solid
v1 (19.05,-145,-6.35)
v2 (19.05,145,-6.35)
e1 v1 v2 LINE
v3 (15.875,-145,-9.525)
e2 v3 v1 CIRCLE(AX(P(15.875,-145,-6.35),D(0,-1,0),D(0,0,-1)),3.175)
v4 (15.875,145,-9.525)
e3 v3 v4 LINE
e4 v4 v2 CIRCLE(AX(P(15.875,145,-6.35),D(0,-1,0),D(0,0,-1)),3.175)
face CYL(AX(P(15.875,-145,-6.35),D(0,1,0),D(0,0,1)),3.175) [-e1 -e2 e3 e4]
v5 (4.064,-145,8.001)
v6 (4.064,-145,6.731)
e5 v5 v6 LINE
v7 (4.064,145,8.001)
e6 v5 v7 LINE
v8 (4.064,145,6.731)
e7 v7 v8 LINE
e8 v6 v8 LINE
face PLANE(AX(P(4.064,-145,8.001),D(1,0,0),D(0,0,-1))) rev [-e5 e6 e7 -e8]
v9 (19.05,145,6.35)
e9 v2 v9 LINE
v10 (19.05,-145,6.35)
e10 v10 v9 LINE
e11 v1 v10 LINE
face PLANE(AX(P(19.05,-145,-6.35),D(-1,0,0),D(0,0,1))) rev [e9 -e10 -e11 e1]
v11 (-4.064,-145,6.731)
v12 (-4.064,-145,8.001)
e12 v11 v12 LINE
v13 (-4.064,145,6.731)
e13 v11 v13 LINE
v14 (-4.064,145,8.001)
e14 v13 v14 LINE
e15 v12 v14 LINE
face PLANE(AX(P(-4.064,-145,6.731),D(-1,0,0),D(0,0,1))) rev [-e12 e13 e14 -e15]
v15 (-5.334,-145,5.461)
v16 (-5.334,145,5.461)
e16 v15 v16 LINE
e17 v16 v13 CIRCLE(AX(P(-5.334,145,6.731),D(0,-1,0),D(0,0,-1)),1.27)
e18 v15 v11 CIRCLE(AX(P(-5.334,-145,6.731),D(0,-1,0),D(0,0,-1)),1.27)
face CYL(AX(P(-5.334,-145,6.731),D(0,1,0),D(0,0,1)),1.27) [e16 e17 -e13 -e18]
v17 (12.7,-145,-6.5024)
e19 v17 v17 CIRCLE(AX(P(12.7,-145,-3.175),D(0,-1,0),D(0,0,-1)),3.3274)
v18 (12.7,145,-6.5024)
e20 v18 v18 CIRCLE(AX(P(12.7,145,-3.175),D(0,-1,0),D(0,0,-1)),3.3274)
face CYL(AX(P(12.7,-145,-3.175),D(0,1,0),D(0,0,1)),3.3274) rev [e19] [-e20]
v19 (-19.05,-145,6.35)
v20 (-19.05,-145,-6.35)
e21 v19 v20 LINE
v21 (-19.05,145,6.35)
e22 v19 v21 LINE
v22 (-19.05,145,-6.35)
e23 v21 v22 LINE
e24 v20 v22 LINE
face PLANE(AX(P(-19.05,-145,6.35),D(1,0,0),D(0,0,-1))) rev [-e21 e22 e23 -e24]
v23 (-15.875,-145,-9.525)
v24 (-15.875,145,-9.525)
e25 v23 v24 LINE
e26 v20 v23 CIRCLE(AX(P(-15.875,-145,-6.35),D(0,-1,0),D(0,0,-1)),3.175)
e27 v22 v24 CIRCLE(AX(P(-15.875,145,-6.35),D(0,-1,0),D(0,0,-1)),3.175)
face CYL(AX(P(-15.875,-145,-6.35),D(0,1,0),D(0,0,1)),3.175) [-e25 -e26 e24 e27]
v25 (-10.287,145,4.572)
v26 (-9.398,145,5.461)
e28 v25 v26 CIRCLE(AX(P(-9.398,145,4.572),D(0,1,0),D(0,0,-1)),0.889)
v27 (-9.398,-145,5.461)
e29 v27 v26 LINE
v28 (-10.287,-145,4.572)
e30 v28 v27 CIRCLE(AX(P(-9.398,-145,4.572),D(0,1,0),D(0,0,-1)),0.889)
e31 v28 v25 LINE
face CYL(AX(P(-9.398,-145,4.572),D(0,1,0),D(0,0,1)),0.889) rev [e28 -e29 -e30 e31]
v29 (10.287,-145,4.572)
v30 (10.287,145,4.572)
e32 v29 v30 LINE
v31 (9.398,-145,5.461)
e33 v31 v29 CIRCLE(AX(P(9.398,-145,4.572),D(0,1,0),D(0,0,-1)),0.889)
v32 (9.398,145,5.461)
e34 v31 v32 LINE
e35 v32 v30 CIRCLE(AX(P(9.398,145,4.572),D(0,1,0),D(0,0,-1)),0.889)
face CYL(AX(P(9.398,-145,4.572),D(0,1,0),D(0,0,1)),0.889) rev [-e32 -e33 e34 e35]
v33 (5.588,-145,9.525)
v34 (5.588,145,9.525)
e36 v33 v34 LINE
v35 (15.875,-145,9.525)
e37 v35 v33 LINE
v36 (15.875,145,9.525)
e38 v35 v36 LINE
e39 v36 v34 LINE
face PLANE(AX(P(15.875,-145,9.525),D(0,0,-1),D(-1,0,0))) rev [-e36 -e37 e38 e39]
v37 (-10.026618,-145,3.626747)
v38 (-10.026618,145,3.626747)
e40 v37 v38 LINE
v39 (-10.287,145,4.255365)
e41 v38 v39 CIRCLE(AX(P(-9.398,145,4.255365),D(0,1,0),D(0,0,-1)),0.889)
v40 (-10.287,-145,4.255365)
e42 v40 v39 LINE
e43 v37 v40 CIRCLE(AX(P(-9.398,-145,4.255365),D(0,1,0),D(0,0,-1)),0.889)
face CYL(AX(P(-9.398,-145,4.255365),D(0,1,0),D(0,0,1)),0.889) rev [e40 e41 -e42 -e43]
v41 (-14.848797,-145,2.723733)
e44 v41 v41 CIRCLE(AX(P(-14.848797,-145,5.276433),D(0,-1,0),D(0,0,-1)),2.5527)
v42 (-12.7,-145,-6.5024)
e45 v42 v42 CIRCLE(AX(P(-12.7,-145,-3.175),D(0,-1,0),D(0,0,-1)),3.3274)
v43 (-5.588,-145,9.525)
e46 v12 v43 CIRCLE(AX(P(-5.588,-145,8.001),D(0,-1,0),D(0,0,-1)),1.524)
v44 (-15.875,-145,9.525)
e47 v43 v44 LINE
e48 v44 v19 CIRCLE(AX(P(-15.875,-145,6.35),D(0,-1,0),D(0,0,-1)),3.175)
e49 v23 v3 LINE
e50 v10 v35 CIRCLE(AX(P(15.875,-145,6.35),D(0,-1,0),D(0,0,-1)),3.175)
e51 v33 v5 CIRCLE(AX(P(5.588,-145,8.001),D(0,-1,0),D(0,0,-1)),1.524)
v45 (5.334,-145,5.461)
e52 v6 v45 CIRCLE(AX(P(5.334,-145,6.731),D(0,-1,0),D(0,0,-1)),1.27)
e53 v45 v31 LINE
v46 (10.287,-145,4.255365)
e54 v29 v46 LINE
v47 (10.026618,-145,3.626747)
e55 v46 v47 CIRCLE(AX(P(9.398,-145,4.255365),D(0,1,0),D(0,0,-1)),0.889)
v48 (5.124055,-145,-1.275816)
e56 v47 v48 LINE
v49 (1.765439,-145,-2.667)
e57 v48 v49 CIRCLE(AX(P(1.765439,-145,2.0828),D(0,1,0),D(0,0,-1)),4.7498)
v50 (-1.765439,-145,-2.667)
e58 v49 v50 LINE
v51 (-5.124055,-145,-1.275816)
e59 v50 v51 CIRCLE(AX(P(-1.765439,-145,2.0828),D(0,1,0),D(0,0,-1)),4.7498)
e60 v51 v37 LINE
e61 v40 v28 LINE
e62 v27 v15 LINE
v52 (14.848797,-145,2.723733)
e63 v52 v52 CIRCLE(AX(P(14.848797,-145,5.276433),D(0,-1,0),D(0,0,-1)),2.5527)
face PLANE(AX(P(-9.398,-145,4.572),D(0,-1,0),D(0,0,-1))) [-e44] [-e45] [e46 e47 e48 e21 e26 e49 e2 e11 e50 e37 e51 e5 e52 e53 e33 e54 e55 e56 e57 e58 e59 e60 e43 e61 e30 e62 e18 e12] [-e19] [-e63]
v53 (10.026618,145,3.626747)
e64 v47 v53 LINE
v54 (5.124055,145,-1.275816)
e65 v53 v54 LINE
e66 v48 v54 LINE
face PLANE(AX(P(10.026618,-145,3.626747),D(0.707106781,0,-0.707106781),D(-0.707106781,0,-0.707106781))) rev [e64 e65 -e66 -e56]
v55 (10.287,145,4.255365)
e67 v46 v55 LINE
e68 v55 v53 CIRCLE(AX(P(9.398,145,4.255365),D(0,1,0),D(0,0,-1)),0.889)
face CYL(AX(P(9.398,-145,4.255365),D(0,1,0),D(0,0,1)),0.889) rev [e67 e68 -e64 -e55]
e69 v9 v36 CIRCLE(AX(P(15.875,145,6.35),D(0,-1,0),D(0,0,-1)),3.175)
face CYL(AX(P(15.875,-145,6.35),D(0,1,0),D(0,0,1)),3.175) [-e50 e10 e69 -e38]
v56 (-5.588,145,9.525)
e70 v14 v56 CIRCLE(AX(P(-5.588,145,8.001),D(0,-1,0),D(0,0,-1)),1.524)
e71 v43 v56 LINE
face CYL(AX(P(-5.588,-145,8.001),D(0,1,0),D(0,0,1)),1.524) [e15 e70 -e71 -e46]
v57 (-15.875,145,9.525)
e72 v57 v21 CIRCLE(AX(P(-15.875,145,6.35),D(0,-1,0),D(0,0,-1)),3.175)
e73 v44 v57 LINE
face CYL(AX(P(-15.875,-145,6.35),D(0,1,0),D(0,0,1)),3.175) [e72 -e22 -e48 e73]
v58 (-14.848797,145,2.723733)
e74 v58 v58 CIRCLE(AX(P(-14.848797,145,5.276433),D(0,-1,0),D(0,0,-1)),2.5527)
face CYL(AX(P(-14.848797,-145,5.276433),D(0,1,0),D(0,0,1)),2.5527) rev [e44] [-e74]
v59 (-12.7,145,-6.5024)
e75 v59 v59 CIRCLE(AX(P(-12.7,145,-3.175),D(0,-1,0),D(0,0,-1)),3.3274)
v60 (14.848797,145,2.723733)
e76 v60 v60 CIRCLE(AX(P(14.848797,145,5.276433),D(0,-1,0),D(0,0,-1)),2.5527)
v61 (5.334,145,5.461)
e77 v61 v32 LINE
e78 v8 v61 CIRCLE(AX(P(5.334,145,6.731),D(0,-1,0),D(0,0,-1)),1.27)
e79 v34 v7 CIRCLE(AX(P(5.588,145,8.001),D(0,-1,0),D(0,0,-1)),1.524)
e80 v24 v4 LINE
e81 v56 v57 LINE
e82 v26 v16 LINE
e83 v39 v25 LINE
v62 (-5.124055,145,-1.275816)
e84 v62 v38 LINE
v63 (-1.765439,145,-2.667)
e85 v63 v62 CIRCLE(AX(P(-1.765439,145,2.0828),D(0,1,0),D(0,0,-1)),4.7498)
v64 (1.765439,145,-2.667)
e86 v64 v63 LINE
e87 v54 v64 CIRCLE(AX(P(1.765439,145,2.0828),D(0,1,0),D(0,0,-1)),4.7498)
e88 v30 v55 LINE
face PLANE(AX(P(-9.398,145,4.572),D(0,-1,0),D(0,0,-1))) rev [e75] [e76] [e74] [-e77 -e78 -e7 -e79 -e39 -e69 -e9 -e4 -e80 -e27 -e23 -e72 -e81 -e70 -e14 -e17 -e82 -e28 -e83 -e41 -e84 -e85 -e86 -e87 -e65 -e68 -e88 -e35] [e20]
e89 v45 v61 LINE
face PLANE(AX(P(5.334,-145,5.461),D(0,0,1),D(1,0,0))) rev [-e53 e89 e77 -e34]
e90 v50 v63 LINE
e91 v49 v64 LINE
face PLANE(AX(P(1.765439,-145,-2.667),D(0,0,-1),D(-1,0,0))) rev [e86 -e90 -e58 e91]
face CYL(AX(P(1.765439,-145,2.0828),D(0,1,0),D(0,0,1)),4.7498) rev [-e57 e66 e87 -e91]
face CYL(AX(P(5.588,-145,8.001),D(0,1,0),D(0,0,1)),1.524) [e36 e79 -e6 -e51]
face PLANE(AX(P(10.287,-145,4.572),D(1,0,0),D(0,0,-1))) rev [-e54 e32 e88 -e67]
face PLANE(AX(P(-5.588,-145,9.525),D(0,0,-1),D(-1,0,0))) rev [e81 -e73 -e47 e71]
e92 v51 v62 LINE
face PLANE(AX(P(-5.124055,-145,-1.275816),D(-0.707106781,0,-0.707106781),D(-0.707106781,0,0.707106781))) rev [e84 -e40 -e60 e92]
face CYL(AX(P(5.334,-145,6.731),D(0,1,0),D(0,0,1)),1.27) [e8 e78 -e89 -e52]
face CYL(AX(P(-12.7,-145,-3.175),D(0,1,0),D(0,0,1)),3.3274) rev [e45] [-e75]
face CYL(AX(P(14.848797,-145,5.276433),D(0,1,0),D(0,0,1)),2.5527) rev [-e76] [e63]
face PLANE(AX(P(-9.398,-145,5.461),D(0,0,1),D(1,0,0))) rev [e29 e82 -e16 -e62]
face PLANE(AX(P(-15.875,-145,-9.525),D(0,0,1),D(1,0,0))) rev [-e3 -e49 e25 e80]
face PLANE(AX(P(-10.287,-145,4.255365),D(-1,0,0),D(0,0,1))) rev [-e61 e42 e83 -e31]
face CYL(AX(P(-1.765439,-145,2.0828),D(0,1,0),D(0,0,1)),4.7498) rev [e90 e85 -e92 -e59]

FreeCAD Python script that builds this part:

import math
import FreeCAD as App
import Part
import Sketcher
from FreeCAD import Vector
Q = App.Units.Quantity

doc = App.newDocument("Part")
body = doc.addObject("PartDesign::Body", "Body")

# Sketch on XZ plane
sketch1 = body.newObject("Sketcher::SketchObject", "Sketch")
sketch1.AttachmentSupport = (doc.getObject("XZ_Plane"), [""])
sketch1.MapMode = "FlatFace"
sketch1.AttachmentOffset = App.Placement(Vector(0, 0, -145), App.Rotation())
sketch1.addGeometry([
    Part.LineSegment(Vector(-9.4, 5.46, 0), Vector(-5.33, 5.46, 0)),  # 0
    Part.ArcOfCircle(Part.Circle(Vector(-5.33, 6.73, 0), Vector(0, 0, 1), 1.27), math.radians(-90), math.radians(0)),  # 1
    Part.LineSegment(Vector(-4.06, 6.73, 0), Vector(-4.06, 8, 0)),  # 2
    Part.ArcOfCircle(Part.Circle(Vector(-5.59, 8, 0), Vector(0, 0, 1), 1.52), math.radians(0), math.radians(90)),  # 3
    Part.LineSegment(Vector(-5.59, 9.53, 0), Vector(-15.88, 9.53, 0)),  # 4
    Part.ArcOfCircle(Part.Circle(Vector(-15.87, 6.35, 0), Vector(0, 0, 1), 3.18), math.radians(90), math.radians(180)),  # 5
    Part.LineSegment(Vector(-19.05, 6.35, 0), Vector(-19.05, -6.35, 0)),  # 6
    Part.ArcOfCircle(Part.Circle(Vector(-15.87, -6.35, 0), Vector(0, 0, 1), 3.18), math.radians(-180), math.radians(-90)),  # 7
    Part.LineSegment(Vector(-15.88, -9.53, 0), Vector(15.88, -9.53, 0)),  # 8
    Part.ArcOfCircle(Part.Circle(Vector(15.87, -6.35, 0), Vector(0, 0, 1), 3.18), math.radians(-90), math.radians(0)),  # 9
    Part.LineSegment(Vector(19.05, -6.35, 0), Vector(19.05, 6.35, 0)),  # 10
    Part.ArcOfCircle(Part.Circle(Vector(15.87, 6.35, 0), Vector(0, 0, 1), 3.18), math.radians(0), math.radians(90)),  # 11
    Part.LineSegment(Vector(15.88, 9.53, 0), Vector(5.59, 9.53, 0)),  # 12
    Part.ArcOfCircle(Part.Circle(Vector(5.59, 8, 0), Vector(0, 0, 1), 1.52), math.radians(90), math.radians(180)),  # 13
    Part.LineSegment(Vector(4.06, 8, 0), Vector(4.06, 6.73, 0)),  # 14
    Part.ArcOfCircle(Part.Circle(Vector(5.33, 6.73, 0), Vector(0, 0, 1), 1.27), math.radians(180), math.radians(270)),  # 15
    Part.LineSegment(Vector(5.33, 5.46, 0), Vector(9.4, 5.46, 0)),  # 16
    Part.ArcOfCircle(Part.Circle(Vector(9.4, 4.57, 0), Vector(0, 0, 1), 0.89), math.radians(0), math.radians(90)),  # 17
    Part.LineSegment(Vector(10.29, 4.57, 0), Vector(10.29, 4.26, 0)),  # 18
    Part.ArcOfCircle(Part.Circle(Vector(9.4, 4.26, 0), Vector(0, 0, 1), 0.89), math.radians(-45), math.radians(0)),  # 19
    Part.LineSegment(Vector(10.03, 3.63, 0), Vector(5.12, -1.28, 0)),  # 20
    Part.ArcOfCircle(Part.Circle(Vector(1.77, 2.08, 0), Vector(0, 0, 1), 4.75), math.radians(-90), math.radians(-45)),  # 21
    Part.LineSegment(Vector(1.77, -2.67, 0), Vector(-1.77, -2.67, 0)),  # 22
    Part.ArcOfCircle(Part.Circle(Vector(-1.77, 2.08, 0), Vector(0, 0, 1), 4.75), math.radians(-135), math.radians(-90)),  # 23
    Part.LineSegment(Vector(-5.12, -1.28, 0), Vector(-10.03, 3.63, 0)),  # 24
    Part.ArcOfCircle(Part.Circle(Vector(-9.4, 4.26, 0), Vector(0, 0, 1), 0.89), math.radians(-180), math.radians(-135)),  # 25
    Part.LineSegment(Vector(-10.29, 4.26, 0), Vector(-10.29, 4.57, 0)),  # 26
    Part.ArcOfCircle(Part.Circle(Vector(-9.4, 4.57, 0), Vector(0, 0, 1), 0.89), math.radians(90), math.radians(180)),  # 27
    Part.Circle(Vector(-12.7, -3.17, 0), Vector(0, 0, 1), 3.33),  # 28
    Part.Circle(Vector(12.7, -3.17, 0), Vector(0, 0, 1), 3.33),  # 29
    Part.Circle(Vector(-14.85, 5.28, 0), Vector(0, 0, 1), 2.55),  # 30
    Part.Circle(Vector(14.85, 5.28, 0), Vector(0, 0, 1), 2.55),  # 31
], False)
sketch1.addConstraint([
    Sketcher.Constraint("Tangent", 0, 2, 1, 1),
    Sketcher.Constraint("Tangent", 1, 2, 2, 1),
    Sketcher.Constraint("Tangent", 2, 2, 3, 1),
    Sketcher.Constraint("Tangent", 3, 2, 4, 1),
    Sketcher.Constraint("Tangent", 4, 2, 5, 1),
    Sketcher.Constraint("Tangent", 5, 2, 6, 1),
    Sketcher.Constraint("Tangent", 6, 2, 7, 1),
    Sketcher.Constraint("Tangent", 7, 2, 8, 1),
    Sketcher.Constraint("Tangent", 8, 2, 9, 1),
    Sketcher.Constraint("Tangent", 9, 2, 10, 1),
    Sketcher.Constraint("Tangent", 10, 2, 11, 1),
    Sketcher.Constraint("Tangent", 11, 2, 12, 1),
    Sketcher.Constraint("Tangent", 12, 2, 13, 1),
    Sketcher.Constraint("Tangent", 13, 2, 14, 1),
    Sketcher.Constraint("Tangent", 14, 2, 15, 1),
    Sketcher.Constraint("Tangent", 15, 2, 16, 1),
    Sketcher.Constraint("Tangent", 16, 2, 17, 2),
    Sketcher.Constraint("Tangent", 17, 1, 18, 1),
    Sketcher.Constraint("Tangent", 18, 2, 19, 2),
    Sketcher.Constraint("Tangent", 19, 1, 20, 1),
    Sketcher.Constraint("Tangent", 20, 2, 21, 2),
    Sketcher.Constraint("Tangent", 21, 1, 22, 1),
    Sketcher.Constraint("Tangent", 22, 2, 23, 2),
    Sketcher.Constraint("Tangent", 23, 1, 24, 1),
    Sketcher.Constraint("Tangent", 24, 2, 25, 2),
    Sketcher.Constraint("Tangent", 25, 1, 26, 1),
    Sketcher.Constraint("Tangent", 26, 2, 27, 2),
    Sketcher.Constraint("Tangent", 27, 1, 0, 1),
    Sketcher.Constraint("Horizontal", 0),
    Sketcher.Constraint("Vertical", 2),
    Sketcher.Constraint("Horizontal", 4),
    Sketcher.Constraint("Vertical", 6),
    Sketcher.Constraint("Horizontal", 8),
    Sketcher.Constraint("Vertical", 10),
    Sketcher.Constraint("Horizontal", 12),
    Sketcher.Constraint("Vertical", 14),
    Sketcher.Constraint("Horizontal", 16),
    Sketcher.Constraint("Vertical", 18),
    Sketcher.Constraint("Horizontal", 22),
    Sketcher.Constraint("Vertical", 26),
    Sketcher.Constraint("Equal", 5, 7),
    Sketcher.Constraint("Equal", 7, 9),
    Sketcher.Constraint("Equal", 9, 11),
    Sketcher.Constraint("Equal", 3, 13),
    Sketcher.Constraint("Equal", 1, 15),
    Sketcher.Constraint("Equal", 17, 19),
    Sketcher.Constraint("Equal", 21, 23),
    Sketcher.Constraint("Equal", 19, 25),
    Sketcher.Constraint("Equal", 25, 27),
    Sketcher.Constraint("Equal", 28, 29),
    Sketcher.Constraint("Equal", 30, 31),
    Sketcher.Constraint("Symmetric", 5, 3, 9, 3, -1, 1),
    Sketcher.Constraint("Symmetric", 3, 3, 13, 3, -2),
    Sketcher.Constraint("Symmetric", 19, 3, 25, 3, -2),
    Sketcher.Constraint("Symmetric", 28, 3, 29, 3, -2),
    Sketcher.Constraint("Symmetric", 30, 3, 31, 3, -2),
    Sketcher.Constraint("Perpendicular", 20, 24),
    Sketcher.Constraint("Horizontal", 1, 3, 15, 3),
    Sketcher.Constraint("Horizontal", 20, 2, 23, 1),
    Sketcher.Constraint("Radius", 1, Q("0.05 in")),
    Sketcher.Constraint("Radius", 3, Q("0.06 in")),
    Sketcher.Constraint("Diameter", 28, Q("0.262 in")),
    Sketcher.Constraint("Diameter", 30, Q("0.201 in")),
    Sketcher.Constraint("DistanceY", 6, 2, 6, 1, Q("0.5 in")),
    Sketcher.Constraint("Radius", 5, Q("0.125 in")),
    Sketcher.Constraint("Radius", 17, Q("0.035 in")),
    Sketcher.Constraint("Radius", 21, Q("0.187 in")),
    Sketcher.Constraint("DistanceX", 0, 1, 0, 2, Q("0.16 in")),
    Sketcher.Constraint("DistanceX", 8, 1, 8, 2, Q("1.25 in")),
    Sketcher.Constraint("DistanceY", 2, 1, 2, 2, Q("0.05 in")),
    Sketcher.Constraint("DistanceX", 28, 3, -1, 1, Q("0.5 in")),
    Sketcher.Constraint("DistanceX", 4, 2, 4, 1, Q("0.405 in")),
    Sketcher.Constraint("DistanceY", 7, 2, 28, 3, Q("0.25 in")),
    Sketcher.Constraint("DistanceY", 21, 1, 15, 2, Q("0.32 in")),
    Sketcher.Constraint("DistanceX", 22, 2, 22, 1, 3.530879),
    Sketcher.Constraint("DistanceX", 30, 3, 24, 2, 4.822179),
    Sketcher.Constraint("DistanceY", -1, 1, 30, 3, 5.276433),
])
pad1 = body.newObject("PartDesign::Pad", "Pad")
pad1.Profile = sketch1
pad1.Length = 290

doc.recompute()
